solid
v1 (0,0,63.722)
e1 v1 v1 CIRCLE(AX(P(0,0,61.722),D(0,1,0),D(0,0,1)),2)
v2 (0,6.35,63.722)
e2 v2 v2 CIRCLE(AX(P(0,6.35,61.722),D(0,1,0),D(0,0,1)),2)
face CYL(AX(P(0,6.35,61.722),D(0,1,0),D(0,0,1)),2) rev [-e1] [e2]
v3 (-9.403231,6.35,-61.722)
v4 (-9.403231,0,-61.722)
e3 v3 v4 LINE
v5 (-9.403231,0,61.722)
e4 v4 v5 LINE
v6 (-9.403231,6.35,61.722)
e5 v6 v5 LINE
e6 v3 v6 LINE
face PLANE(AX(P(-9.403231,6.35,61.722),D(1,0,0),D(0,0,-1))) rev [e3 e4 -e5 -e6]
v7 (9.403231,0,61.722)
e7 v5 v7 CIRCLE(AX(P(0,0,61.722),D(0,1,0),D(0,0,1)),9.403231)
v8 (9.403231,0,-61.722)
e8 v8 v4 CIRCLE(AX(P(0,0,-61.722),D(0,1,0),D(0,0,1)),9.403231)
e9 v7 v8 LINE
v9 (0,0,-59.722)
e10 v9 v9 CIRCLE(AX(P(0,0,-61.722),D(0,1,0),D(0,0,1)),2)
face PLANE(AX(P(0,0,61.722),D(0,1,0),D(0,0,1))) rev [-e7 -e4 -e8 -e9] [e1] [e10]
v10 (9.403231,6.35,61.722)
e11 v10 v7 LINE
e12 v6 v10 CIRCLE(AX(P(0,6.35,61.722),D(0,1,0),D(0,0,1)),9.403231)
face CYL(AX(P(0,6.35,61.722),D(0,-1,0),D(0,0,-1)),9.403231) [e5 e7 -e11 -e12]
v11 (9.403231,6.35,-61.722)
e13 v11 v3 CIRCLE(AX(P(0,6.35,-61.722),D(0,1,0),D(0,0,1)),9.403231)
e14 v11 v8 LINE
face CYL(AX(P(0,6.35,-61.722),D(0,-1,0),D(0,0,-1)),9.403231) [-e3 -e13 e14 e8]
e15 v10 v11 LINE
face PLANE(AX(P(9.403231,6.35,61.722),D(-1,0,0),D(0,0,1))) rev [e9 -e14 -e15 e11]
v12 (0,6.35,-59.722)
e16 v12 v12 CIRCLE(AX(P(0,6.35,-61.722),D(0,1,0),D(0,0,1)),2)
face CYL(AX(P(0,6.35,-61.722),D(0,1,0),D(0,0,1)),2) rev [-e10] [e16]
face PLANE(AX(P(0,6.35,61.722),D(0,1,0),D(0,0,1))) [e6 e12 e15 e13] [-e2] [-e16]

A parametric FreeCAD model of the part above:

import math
import FreeCAD as App
import Part
import Sketcher

V = App.Vector
Q = App.Units.Quantity

doc = App.newDocument("Part")
body = doc.addObject("PartDesign::Body", "Body")

# Sketch on XZ plane
sketch1 = body.newObject("Sketcher::SketchObject", "Sketch")
sketch1.AttachmentSupport = (doc.getObject("XZ_Plane"), [""])
sketch1.MapMode = "FlatFace"
sketch1.addGeometry([
    Part.LineSegment(V(-9, -62, 0), V(-9, 62, 0)),
    Part.ArcOfCircle(Part.Circle(V(0, 62, 0), V(0, 0, 1), 9), math.radians(0), math.radians(180)),
    Part.LineSegment(V(9, 62, 0), V(9, -62, 0)),
    Part.ArcOfCircle(Part.Circle(V(0, -62, 0), V(0, 0, 1), 9), math.radians(180), math.radians(360)),
], False)
sketch1.addConstraint([
    Sketcher.Constraint("Tangent", 0, 2, 1, 2),
    Sketcher.Constraint("Tangent", 1, 1, 2, 1),
    Sketcher.Constraint("Tangent", 2, 2, 3, 2),
    Sketcher.Constraint("Tangent", 3, 1, 0, 1),
    Sketcher.Constraint("Vertical", 0),
    Sketcher.Constraint("Vertical", 2),
    Sketcher.Constraint("Symmetric", 1, 3, 3, 3, -1, 1),
    Sketcher.Constraint("DistanceY", 0, 1, 0, 2, Q("4.86 in")),
    Sketcher.Constraint("Radius", 1, Q("9.403231 mm")),
])
pad1 = body.newObject("PartDesign::Pad", "Pad")
pad1.Profile = sketch1
pad1.Length = Q("0.25 in")
pad1.Reversed = True

# Sketch on XZ plane
sketch2 = body.newObject("Sketcher::SketchObject", "Sketch001")
sketch2.AttachmentSupport = (doc.getObject("XZ_Plane"), [""])
sketch2.MapMode = "FlatFace"
sketch2.AttachmentOffset = App.Placement(V(0, 0, -0.25 * 25.4), App.Rotation())
sketch2.addGeometry([
    Part.Circle(V(0, 61.7, 0), V(0, 0, 1), 2),
    Part.Circle(V(0, -61.7, 0), V(0, 0, 1), 2),
], False)
sketch2.addConstraint([
    Sketcher.Constraint("Equal", 0, 1),
    Sketcher.Constraint("Symmetric", 0, 3, 1, 3, -1, 1),
    Sketcher.Constraint("PointOnObject", 0, 3, -2),
    Sketcher.Constraint("Diameter", 0, Q("4 mm")),
    Sketcher.Constraint("DistanceY", -1, 1, 0, 3, Q("2.43 in")),
])
doc.recompute()
hole = body.newObject("PartDesign::Hole", "Hole")
hole.Profile = sketch2
hole.ThreadType = "None"
hole.Diameter = 4
hole.DepthType = "ThroughAll"
hole.Reversed = True

doc.recompute()
